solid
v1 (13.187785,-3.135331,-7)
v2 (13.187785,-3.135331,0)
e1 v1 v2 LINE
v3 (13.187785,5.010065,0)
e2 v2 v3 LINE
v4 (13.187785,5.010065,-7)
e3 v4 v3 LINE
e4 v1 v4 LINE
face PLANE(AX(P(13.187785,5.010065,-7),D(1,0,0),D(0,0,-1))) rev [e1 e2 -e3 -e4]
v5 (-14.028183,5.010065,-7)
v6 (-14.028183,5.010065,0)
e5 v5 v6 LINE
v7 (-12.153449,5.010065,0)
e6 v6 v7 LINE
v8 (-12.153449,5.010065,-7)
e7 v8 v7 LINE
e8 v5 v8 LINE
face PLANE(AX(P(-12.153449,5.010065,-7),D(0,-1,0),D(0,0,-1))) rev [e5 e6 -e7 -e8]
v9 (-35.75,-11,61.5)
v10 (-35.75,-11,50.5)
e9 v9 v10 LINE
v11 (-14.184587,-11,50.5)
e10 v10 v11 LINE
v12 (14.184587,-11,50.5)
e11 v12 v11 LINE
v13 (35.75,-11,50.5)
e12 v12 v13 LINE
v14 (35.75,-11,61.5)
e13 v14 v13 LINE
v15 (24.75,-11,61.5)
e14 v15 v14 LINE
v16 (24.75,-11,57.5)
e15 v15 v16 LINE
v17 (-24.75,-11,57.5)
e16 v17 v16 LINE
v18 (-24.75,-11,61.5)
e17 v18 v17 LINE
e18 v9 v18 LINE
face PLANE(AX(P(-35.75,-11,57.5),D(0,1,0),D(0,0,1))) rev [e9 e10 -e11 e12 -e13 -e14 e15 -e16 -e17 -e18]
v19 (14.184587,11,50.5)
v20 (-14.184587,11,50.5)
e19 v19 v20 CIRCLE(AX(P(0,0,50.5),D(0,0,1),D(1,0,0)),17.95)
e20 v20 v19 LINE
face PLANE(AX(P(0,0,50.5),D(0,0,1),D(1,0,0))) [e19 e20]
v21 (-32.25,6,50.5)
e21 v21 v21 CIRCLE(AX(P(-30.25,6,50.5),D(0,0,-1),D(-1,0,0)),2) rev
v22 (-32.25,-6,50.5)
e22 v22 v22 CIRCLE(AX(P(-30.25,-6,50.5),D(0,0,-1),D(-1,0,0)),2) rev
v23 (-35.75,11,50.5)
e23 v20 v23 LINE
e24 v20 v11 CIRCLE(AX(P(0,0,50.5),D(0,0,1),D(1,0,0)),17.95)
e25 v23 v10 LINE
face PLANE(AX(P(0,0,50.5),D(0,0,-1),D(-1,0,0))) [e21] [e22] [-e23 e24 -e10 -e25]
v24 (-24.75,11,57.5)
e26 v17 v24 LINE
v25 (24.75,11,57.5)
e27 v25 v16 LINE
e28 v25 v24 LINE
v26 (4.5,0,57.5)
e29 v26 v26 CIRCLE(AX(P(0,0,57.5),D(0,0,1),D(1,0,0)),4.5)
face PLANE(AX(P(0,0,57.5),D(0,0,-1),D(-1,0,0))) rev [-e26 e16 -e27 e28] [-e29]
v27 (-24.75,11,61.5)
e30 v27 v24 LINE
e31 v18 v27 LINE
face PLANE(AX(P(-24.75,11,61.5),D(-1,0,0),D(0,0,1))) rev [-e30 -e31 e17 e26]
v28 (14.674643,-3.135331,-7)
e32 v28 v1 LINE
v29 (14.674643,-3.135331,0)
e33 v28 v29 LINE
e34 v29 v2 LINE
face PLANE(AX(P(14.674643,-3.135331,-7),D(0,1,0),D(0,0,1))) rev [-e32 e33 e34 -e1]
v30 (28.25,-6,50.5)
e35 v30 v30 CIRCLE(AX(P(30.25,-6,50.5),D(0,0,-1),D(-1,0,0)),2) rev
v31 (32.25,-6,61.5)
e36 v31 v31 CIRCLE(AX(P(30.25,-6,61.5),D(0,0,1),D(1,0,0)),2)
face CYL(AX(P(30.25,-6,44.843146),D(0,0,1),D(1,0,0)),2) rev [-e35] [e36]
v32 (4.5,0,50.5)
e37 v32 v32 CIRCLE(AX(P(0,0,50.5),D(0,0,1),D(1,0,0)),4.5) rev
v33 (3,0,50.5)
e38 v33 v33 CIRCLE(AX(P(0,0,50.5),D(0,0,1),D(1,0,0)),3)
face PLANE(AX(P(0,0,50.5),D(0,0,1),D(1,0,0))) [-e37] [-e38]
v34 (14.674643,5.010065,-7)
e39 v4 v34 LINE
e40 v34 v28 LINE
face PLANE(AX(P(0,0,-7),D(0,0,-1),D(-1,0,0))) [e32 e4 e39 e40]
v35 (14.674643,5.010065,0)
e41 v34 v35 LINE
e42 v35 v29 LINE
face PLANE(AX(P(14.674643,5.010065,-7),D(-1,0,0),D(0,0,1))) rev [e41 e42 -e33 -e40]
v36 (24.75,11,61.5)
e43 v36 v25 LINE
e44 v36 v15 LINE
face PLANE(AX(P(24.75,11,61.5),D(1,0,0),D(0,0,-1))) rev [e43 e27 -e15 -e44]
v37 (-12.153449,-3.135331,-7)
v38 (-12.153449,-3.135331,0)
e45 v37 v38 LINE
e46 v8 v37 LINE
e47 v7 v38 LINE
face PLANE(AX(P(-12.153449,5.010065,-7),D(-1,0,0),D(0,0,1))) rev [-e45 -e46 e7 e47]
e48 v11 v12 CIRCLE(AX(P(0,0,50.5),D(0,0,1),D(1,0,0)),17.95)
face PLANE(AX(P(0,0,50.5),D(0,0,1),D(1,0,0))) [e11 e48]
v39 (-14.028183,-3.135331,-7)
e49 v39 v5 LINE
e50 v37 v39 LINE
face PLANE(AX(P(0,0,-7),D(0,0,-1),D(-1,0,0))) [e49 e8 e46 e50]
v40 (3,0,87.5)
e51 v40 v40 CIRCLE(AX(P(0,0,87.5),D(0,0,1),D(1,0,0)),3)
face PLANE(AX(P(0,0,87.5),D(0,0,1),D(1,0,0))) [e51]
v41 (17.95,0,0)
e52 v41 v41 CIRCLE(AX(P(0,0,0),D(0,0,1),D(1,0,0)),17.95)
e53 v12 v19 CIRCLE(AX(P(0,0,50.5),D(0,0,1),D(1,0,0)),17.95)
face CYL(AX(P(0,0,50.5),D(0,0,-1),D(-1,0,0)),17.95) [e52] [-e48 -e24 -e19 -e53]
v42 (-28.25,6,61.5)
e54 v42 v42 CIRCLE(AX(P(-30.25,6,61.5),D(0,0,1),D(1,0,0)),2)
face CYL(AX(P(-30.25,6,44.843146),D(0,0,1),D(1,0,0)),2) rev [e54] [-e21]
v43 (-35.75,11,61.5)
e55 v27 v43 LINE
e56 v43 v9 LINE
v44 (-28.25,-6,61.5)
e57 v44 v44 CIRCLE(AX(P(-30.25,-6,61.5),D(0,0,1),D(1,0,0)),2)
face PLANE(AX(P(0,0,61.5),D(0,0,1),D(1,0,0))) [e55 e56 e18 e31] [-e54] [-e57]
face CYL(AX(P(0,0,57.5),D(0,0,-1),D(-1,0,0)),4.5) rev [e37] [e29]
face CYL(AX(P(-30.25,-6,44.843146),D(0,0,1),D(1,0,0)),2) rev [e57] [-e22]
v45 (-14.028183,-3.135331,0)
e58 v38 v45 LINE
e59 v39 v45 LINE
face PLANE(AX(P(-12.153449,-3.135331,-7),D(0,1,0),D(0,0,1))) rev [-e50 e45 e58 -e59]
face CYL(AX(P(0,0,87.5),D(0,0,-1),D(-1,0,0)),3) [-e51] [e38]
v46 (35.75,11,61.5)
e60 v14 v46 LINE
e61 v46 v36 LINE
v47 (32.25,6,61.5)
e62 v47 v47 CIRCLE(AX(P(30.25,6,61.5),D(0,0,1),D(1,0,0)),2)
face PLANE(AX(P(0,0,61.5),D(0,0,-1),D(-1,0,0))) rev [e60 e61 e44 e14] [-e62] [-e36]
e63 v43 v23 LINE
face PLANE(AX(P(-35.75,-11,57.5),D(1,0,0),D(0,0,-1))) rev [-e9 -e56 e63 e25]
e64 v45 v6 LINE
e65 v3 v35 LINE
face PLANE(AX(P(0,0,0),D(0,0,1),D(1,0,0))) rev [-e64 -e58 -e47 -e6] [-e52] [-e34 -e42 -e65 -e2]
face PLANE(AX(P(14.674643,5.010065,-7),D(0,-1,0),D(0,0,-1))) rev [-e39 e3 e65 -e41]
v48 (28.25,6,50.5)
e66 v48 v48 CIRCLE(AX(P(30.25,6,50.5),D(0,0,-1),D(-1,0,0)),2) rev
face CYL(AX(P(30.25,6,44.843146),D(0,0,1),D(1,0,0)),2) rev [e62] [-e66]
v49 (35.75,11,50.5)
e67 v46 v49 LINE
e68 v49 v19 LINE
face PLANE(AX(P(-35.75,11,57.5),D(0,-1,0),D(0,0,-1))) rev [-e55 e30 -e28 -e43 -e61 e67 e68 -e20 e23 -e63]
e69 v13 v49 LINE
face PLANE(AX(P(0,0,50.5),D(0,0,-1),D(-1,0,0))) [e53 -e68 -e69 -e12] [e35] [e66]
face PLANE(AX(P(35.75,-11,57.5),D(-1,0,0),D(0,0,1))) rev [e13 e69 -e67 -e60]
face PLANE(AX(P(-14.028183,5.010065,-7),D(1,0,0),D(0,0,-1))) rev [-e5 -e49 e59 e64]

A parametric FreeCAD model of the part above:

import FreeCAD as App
import Part
import Sketcher

V = App.Vector
Q = App.Units.Quantity


def add_polygon(sketch, points):
    """Adds a closed chain of lines whose ends are joined by coincident constraints."""
    first, n = sketch.GeometryCount, len(points)
    for a, b in zip(points, points[1:] + points[:1]):
        sketch.addGeometry(Part.LineSegment(App.Vector(*a, 0), App.Vector(*b, 0)), False)
    for i in range(n):
        sketch.addConstraint(Sketcher.Constraint("Coincident", first + i, 2, first + (i + 1) % n, 1))

doc = App.newDocument("Part")
body = doc.addObject("PartDesign::Body", "Body")

# Sketch on XY plane
sketch1 = doc.addObject("Sketcher::SketchObject", "Sketch")
body.addObject(sketch1)
sketch1.AttachmentSupport = (doc.XY_Plane, [""])
sketch1.MapMode = "FlatFace"
sketch1.addGeometry(Part.Circle(V(0, 0, 0), V(0, 0, 1), 17.95), False)
sketch1.addConstraint(Sketcher.Constraint("Coincident", 0, 3, -1, 1))
sketch1.addConstraint(Sketcher.Constraint("Diameter", 0, Q("35.9 mm")))
pad1 = doc.addObject("PartDesign::Pad", "Pad")
body.addObject(pad1)
pad1.Profile = sketch1
pad1.Length = 50.5

# Sketch on XY plane
sketch2 = doc.addObject("Sketcher::SketchObject", "Sketch001")
body.addObject(sketch2)
sketch2.AttachmentSupport = (doc.XY_Plane, [""])
sketch2.MapMode = "FlatFace"
sketch2.AttachmentOffset = App.Placement(V(0, 0, 50.5), App.Rotation())
sketch2.addGeometry(Part.Circle(V(0, 0, 0), V(0, 0, 1), 3), False)
sketch2.addConstraint(Sketcher.Constraint("Coincident", 0, 3, -1, 1))
sketch2.addConstraint(Sketcher.Constraint("Diameter", 0, Q("6 mm")))
pad2 = doc.addObject("PartDesign::Pad", "Pad001")
body.addObject(pad2)
pad2.Profile = sketch2
pad2.Length = 37

# Sketch on XY plane
sketch3 = doc.addObject("Sketcher::SketchObject", "Sketch002")
body.addObject(sketch3)
sketch3.AttachmentSupport = (doc.XY_Plane, [""])
sketch3.MapMode = "FlatFace"
sketch3.AttachmentOffset = App.Placement(V(0, 0, 50.5), App.Rotation())
add_polygon(sketch3, [(-35.75, 11), (-35.75, -11), (35.75, -11), (35.75, 11)])  # lines 0-3
sketch3.addGeometry(Part.Circle(V(0, 0, 0), V(0, 0, 1), 4.5), False)  # 4
sketch3.addConstraint(Sketcher.Constraint("Vertical", 0))
sketch3.addConstraint(Sketcher.Constraint("Horizontal", 1))
sketch3.addConstraint(Sketcher.Constraint("Vertical", 2))
sketch3.addConstraint(Sketcher.Constraint("Horizontal", 3))
sketch3.addConstraint(Sketcher.Constraint("Coincident", 4, 3, -1, 1))
sketch3.addConstraint(Sketcher.Constraint("Symmetric", 0, 2, 2, 2, -1, 1))
sketch3.addConstraint(Sketcher.Constraint("Diameter", 4, Q("9 mm")))
sketch3.addConstraint(Sketcher.Constraint("DistanceY", 0, 2, 0, 1, Q("22 mm")))
sketch3.addConstraint(Sketcher.Constraint("DistanceX", 1, 1, 1, 2, Q("71.5 mm")))
pad3 = doc.addObject("PartDesign::Pad", "Pad002")
body.addObject(pad3)
pad3.Profile = sketch3
pad3.Length = 7

# Sketch on XY plane
sketch4 = doc.addObject("Sketcher::SketchObject", "Sketch003")
body.addObject(sketch4)
sketch4.AttachmentSupport = (doc.XY_Plane, [""])
sketch4.MapMode = "FlatFace"
sketch4.AttachmentOffset = App.Placement(V(0, 0, 57.5), App.Rotation())
add_polygon(sketch4, [(-35.75, 11), (-35.75, -11), (-24.75, -11), (-24.75, 11)])  # lines 0-3
add_polygon(sketch4, [(24.75, 11), (24.75, -11), (35.75, -11), (35.75, 11)])  # lines 4-7
sketch4.addConstraint(Sketcher.Constraint("Vertical", 0))
sketch4.addConstraint(Sketcher.Constraint("Horizontal", 1))
sketch4.addConstraint(Sketcher.Constraint("Vertical", 2))
sketch4.addConstraint(Sketcher.Constraint("Horizontal", 3))
sketch4.addConstraint(Sketcher.Constraint("Vertical", 4))
sketch4.addConstraint(Sketcher.Constraint("Horizontal", 5))
sketch4.addConstraint(Sketcher.Constraint("Vertical", 6))
sketch4.addConstraint(Sketcher.Constraint("Horizontal", 7))
sketch4.addConstraint(Sketcher.Constraint("Symmetric", 2, 2, 4, 2, -1, 1))
sketch4.addConstraint(Sketcher.Constraint("Symmetric", 0, 2, 6, 2, -1, 1))
sketch4.addConstraint(Sketcher.Constraint("Horizontal", 1, 2, 4, 2))
sketch4.addConstraint(Sketcher.Constraint("DistanceX", 1, 1, 1, 2, Q("11 mm")))
sketch4.addConstraint(Sketcher.Constraint("DistanceY", 0, 2, 0, 1, Q("22 mm")))
sketch4.addConstraint(Sketcher.Constraint("DistanceX", 1, 2, 4, 2, Q("49.5 mm")))
pad4 = doc.addObject("PartDesign::Pad", "Pad003")
body.addObject(pad4)
pad4.Profile = sketch4
pad4.Length = 4

# Sketch on XY plane
sketch5 = doc.addObject("Sketcher::SketchObject", "Sketch004")
body.addObject(sketch5)
sketch5.AttachmentSupport = (doc.XY_Plane, [""])
sketch5.MapMode = "FlatFace"
sketch5.AttachmentOffset = App.Placement(V(0, 0, 61.5), App.Rotation())
sketch5.addGeometry(Part.Circle(V(-30.25, 6, 0), V(0, 0, 1), 2), False)
sketch5.addGeometry(Part.Circle(V(-30.25, -6, 0), V(0, 0, 1), 2), False)
sketch5.addGeometry(Part.Circle(V(30.25, -6, 0), V(0, 0, 1), 2), False)
sketch5.addGeometry(Part.Circle(V(30.25, 6, 0), V(0, 0, 1), 2), False)
sketch5.addConstraint(Sketcher.Constraint("Equal", 0, 1))
sketch5.addConstraint(Sketcher.Constraint("Equal", 1, 2))
sketch5.addConstraint(Sketcher.Constraint("Equal", 2, 3))
sketch5.addConstraint(Sketcher.Constraint("Symmetric", 0, 3, 2, 3, -1, 1))
sketch5.addConstraint(Sketcher.Constraint("Symmetric", 1, 3, 3, 3, -1, 1))
sketch5.addConstraint(Sketcher.Constraint("Symmetric", 1, 3, 2, 3, -2))
sketch5.addConstraint(Sketcher.Constraint("Diameter", 0, Q("4 mm")))
sketch5.addConstraint(Sketcher.Constraint("DistanceY", -1, 1, 0, 3, Q("6 mm")))
sketch5.addConstraint(Sketcher.Constraint("DistanceX", 1, 3, 2, 3, Q("60.5 mm")))
pocket1 = doc.addObject("PartDesign::Pocket", "Pocket")
body.addObject(pocket1)
pocket1.Profile = sketch5
pocket1.Length = 11

# Sketch on XY plane
sketch6 = doc.addObject("Sketcher::SketchObject", "Sketch005")
body.addObject(sketch6)
sketch6.AttachmentSupport = (doc.XY_Plane, [""])
sketch6.MapMode = "FlatFace"
add_polygon(sketch6, [(14.674643, 5.010065), (14.674643, -3.135331), (13.187785, -3.135331), (13.187785, 5.010065)])  # lines 0-3
add_polygon(sketch6, [(-12.153449, 5.010065), (-12.153449, -3.135331), (-14.028183, -3.135331), (-14.028183, 5.010065)])  # lines 4-7
sketch6.addConstraint(Sketcher.Constraint("Vertical", 0))
sketch6.addConstraint(Sketcher.Constraint("Horizontal", 1))
sketch6.addConstraint(Sketcher.Constraint("Vertical", 2))
sketch6.addConstraint(Sketcher.Constraint("Horizontal", 3))
sketch6.addConstraint(Sketcher.Constraint("Vertical", 4))
sketch6.addConstraint(Sketcher.Constraint("Horizontal", 5))
sketch6.addConstraint(Sketcher.Constraint("Vertical", 6))
sketch6.addConstraint(Sketcher.Constraint("Horizontal", 7))
sketch6.addConstraint(Sketcher.Constraint("Horizontal", 1, 2, 4, 2))
sketch6.addConstraint(Sketcher.Constraint("Horizontal", 3, 2, 6, 2))
sketch6.addConstraint(Sketcher.Constraint("DistanceX", 1, 2, 1, 1, Q("1.486858 mm")))
sketch6.addConstraint(Sketcher.Constraint("DistanceX", 5, 2, 5, 1, Q("1.874734 mm")))
sketch6.addConstraint(Sketcher.Constraint("DistanceY", 0, 2, 0, 1, Q("8.145396 mm")))
sketch6.addConstraint(Sketcher.Constraint("DistanceY", 0, 2, -1, 1, Q("3.135331 mm")))
sketch6.addConstraint(Sketcher.Constraint("DistanceX", 4, 2, -1, 1, Q("12.153449 mm")))
sketch6.addConstraint(Sketcher.Constraint("DistanceX", 4, 2, 0, 2, Q("26.828092 mm")))
pad5 = doc.addObject("PartDesign::Pad", "Pad004")
body.addObject(pad5)
pad5.Profile = sketch6
pad5.Length = 7
pad5.Reversed = True

doc.recompute()
